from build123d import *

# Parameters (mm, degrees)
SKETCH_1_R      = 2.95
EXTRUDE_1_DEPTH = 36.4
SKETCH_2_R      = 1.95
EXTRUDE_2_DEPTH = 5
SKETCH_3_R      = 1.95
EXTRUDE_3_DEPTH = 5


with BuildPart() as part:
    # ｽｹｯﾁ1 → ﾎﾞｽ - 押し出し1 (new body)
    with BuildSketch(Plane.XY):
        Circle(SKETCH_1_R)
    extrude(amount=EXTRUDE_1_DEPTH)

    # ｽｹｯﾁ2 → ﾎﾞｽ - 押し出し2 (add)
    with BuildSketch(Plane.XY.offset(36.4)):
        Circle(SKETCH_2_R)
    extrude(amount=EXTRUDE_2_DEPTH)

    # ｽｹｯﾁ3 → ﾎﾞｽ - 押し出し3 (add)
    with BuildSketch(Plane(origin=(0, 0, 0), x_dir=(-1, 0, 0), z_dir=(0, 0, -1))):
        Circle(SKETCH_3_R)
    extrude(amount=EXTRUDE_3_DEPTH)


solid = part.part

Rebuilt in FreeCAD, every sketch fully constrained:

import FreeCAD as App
import Part
import Sketcher
from FreeCAD import Vector
Q = App.Units.Quantity

doc = App.newDocument("Part")
body = doc.addObject("PartDesign::Body", "Body")

sketch1 = body.newObject("Sketcher::SketchObject", "Sketch")
sketch1.AttachmentSupport = (doc.getObject("XY_Plane"), [""])
sketch1.MapMode = "FlatFace"
sketch1.addGeometry(Part.Circle(Vector(0, 0, 0), Vector(0, 0, 1), 2.95), False)
sketch1.addConstraint([
    Sketcher.Constraint("Coincident", 0, 3, -1, 1),
    Sketcher.Constraint("Diameter", 0, Q("5.9 mm")),
])
pad1 = body.newObject("PartDesign::Pad", "Pad")
pad1.Profile = sketch1
pad1.Length = 36.4

sketch2 = body.newObject("Sketcher::SketchObject", "Sketch001")
sketch2.AttachmentSupport = (doc.getObject("XY_Plane"), [""])
sketch2.MapMode = "FlatFace"
sketch2.AttachmentOffset = App.Placement(Vector(0, 0, 36.4), App.Rotation())
sketch2.addGeometry(Part.Circle(Vector(0, 0, 0), Vector(0, 0, 1), 1.95), False)
sketch2.addConstraint([
    Sketcher.Constraint("Coincident", 0, 3, -1, 1),
    Sketcher.Constraint("Diameter", 0, Q("3.9 mm")),
])
pad2 = body.newObject("PartDesign::Pad", "Pad001")
pad2.Profile = sketch2
pad2.Length = 5

sketch3 = body.newObject("Sketcher::SketchObject", "Sketch002")
sketch3.AttachmentSupport = (doc.getObject("XY_Plane"), [""])
sketch3.MapMode = "FlatFace"
sketch3.addGeometry(Part.Circle(Vector(0, 0, 0), Vector(0, 0, 1), 1.95), False)
sketch3.addConstraint([
    Sketcher.Constraint("Coincident", 0, 3, -1, 1),
    Sketcher.Constraint("Diameter", 0, Q("3.9 mm")),
])
pad3 = body.newObject("PartDesign::Pad", "Pad002")
pad3.Profile = sketch3
pad3.Length = 5
pad3.Reversed = True

doc.recompute()
